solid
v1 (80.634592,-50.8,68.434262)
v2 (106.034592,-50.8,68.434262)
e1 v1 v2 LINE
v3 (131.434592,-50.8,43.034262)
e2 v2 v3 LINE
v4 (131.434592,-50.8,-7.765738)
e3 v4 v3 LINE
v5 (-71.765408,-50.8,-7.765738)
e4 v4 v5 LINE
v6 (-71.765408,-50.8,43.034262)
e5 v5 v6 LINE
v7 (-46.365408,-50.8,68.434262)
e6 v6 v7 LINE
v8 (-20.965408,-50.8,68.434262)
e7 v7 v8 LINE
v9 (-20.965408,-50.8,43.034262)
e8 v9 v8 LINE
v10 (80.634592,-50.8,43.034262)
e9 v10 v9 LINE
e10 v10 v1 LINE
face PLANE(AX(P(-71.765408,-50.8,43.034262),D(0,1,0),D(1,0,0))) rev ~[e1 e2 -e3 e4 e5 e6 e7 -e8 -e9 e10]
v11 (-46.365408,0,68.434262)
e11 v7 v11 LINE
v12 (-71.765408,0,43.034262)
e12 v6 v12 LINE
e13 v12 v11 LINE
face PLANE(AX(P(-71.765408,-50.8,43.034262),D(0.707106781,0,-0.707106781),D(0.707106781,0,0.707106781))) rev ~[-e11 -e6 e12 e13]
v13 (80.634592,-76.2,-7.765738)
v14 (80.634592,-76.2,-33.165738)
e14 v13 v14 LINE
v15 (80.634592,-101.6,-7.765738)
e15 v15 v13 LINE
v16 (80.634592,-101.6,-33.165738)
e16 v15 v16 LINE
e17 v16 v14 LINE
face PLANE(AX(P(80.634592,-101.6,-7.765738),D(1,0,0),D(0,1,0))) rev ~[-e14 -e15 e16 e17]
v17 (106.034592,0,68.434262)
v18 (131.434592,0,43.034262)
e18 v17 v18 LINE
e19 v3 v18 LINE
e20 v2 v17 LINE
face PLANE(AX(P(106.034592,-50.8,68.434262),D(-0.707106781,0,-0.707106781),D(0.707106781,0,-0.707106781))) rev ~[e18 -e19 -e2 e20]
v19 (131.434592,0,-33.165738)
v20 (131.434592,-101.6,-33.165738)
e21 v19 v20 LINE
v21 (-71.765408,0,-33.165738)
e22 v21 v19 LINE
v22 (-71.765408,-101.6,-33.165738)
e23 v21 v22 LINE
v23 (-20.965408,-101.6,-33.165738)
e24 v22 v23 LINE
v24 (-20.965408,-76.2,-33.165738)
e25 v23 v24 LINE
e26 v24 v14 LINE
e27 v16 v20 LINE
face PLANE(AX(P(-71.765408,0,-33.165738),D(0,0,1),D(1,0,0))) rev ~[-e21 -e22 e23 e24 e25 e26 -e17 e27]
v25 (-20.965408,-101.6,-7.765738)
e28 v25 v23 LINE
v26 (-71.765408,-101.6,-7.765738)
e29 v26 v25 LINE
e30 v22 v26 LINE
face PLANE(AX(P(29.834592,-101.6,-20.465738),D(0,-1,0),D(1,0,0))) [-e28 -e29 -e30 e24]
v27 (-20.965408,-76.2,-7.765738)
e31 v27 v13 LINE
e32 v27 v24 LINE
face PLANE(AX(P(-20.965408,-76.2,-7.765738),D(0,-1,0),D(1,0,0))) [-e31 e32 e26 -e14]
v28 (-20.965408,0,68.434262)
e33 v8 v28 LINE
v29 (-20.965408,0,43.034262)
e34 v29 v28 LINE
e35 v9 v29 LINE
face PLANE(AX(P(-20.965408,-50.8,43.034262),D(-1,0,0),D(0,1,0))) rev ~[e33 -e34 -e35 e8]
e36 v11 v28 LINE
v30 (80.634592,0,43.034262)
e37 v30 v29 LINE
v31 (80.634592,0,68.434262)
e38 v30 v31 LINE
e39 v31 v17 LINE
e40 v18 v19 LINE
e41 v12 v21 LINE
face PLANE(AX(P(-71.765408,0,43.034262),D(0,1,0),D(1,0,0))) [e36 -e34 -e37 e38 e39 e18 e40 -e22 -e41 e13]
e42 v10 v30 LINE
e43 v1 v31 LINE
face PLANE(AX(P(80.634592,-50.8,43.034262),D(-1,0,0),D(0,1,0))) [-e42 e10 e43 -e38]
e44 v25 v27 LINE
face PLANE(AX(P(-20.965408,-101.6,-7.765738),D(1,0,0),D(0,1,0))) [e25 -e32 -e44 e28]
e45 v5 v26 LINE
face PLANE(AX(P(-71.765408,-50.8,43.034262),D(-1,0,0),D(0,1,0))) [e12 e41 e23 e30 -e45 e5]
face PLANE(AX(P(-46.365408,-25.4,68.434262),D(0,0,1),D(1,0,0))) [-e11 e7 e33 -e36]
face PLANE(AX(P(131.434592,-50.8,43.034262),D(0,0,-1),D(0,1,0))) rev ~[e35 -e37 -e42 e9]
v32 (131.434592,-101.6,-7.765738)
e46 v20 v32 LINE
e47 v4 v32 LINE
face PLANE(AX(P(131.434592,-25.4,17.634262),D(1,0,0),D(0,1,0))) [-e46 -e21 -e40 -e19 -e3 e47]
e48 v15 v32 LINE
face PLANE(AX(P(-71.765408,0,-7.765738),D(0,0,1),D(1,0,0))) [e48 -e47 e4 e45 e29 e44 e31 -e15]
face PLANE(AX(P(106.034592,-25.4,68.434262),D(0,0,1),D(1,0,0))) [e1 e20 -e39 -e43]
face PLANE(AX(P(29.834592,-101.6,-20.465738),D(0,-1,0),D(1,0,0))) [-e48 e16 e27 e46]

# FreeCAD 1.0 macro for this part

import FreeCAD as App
import Part
import Sketcher
from FreeCAD import Vector
Q = App.Units.Quantity

doc = App.newDocument("Part")
params = doc.addObject("Spreadsheet::Sheet", "Params")
for row, (alias, value) in enumerate([
    ("sketch1_width", "8 in"),
    ("sketch1_height", "1 in"),
    ("pad1_length", "4 in"),
    ("sketch2_width", "4 in"),
    ("sketch2_height", "1 in"),
    ("pocket1_length", "1 in"),
    ("sketch3_width", "2 in"),
    ("pad2_length", "8 in"),
    ("sketch4_width", "2 in"),
    ("pad3_length", "1 in"),
    ("sketch5_width", "1 in"),
    ("pocket2_length", "2 in"),
], start=1):
    params.set(f"A{row}", alias)
    params.set(f"B{row}", "=" + value)
    params.setAlias(f"B{row}", alias)

body = doc.addObject("PartDesign::Body", "Body")

# Sketch on XZ plane
sketch1 = doc.addObject("Sketcher::SketchObject", "Sketch")
body.addObject(sketch1)
sketch1.AttachmentSupport = (doc.XZ_Plane, [""])
sketch1.MapMode = "FlatFace"
sketch1.addGeometry(Part.LineSegment(Vector(-72, -8, 0), Vector(-72, -33, 0)), False)
sketch1.addGeometry(Part.LineSegment(Vector(-72, -33, 0), Vector(131, -33, 0)), False)
sketch1.addGeometry(Part.LineSegment(Vector(131, -33, 0), Vector(131, -8, 0)), False)
sketch1.addGeometry(Part.LineSegment(Vector(131, -8, 0), Vector(-72, -8, 0)), False)
sketch1.addConstraint(Sketcher.Constraint("Coincident", 0, 2, 1, 1))
sketch1.addConstraint(Sketcher.Constraint("Coincident", 1, 2, 2, 1))
sketch1.addConstraint(Sketcher.Constraint("Coincident", 2, 2, 3, 1))
sketch1.addConstraint(Sketcher.Constraint("Coincident", 3, 2, 0, 1))
sketch1.addConstraint(Sketcher.Constraint("Vertical", 0))
sketch1.addConstraint(Sketcher.Constraint("Horizontal", 1))
sketch1.addConstraint(Sketcher.Constraint("Vertical", 2))
sketch1.addConstraint(Sketcher.Constraint("Horizontal", 3))
sketch1.addConstraint(Sketcher.Constraint("DistanceX", 1, 1, 1, 2, Q("8 in")))
sketch1.addConstraint(Sketcher.Constraint("DistanceY", 0, 2, 0, 1, Q("1 in")))
sketch1.addConstraint(Sketcher.Constraint("DistanceX", 0, 2, -1, 1, Q("71.765408 mm")))
sketch1.addConstraint(Sketcher.Constraint("DistanceY", 0, 2, -1, 1, Q("33.165738 mm")))
sketch1.setExpression("Constraints[8]", "Params.sketch1_width")
sketch1.setExpression("Constraints[9]", "Params.sketch1_height")
pad1 = doc.addObject("PartDesign::Pad", "Pad")
body.addObject(pad1)
pad1.Profile = sketch1
pad1.setExpression("Length", "Params.pad1_length")

# Sketch on XY plane
sketch2 = doc.addObject("Sketcher::SketchObject", "Sketch001")
body.addObject(sketch2)
sketch2.AttachmentSupport = (doc.XY_Plane, [""])
sketch2.MapMode = "FlatFace"
sketch2.AttachmentOffset = App.Placement(Vector(0, 0, -7.765738), App.Rotation())
sketch2.addGeometry(Part.LineSegment(Vector(-21, -76, 0), Vector(-21, -102, 0)), False)
sketch2.addGeometry(Part.LineSegment(Vector(-21, -102, 0), Vector(81, -102, 0)), False)
sketch2.addGeometry(Part.LineSegment(Vector(81, -102, 0), Vector(81, -76, 0)), False)
sketch2.addGeometry(Part.LineSegment(Vector(81, -76, 0), Vector(-21, -76, 0)), False)
sketch2.addConstraint(Sketcher.Constraint("Coincident", 0, 2, 1, 1))
sketch2.addConstraint(Sketcher.Constraint("Coincident", 1, 2, 2, 1))
sketch2.addConstraint(Sketcher.Constraint("Coincident", 2, 2, 3, 1))
sketch2.addConstraint(Sketcher.Constraint("Coincident", 3, 2, 0, 1))
sketch2.addConstraint(Sketcher.Constraint("Vertical", 0))
sketch2.addConstraint(Sketcher.Constraint("Horizontal", 1))
sketch2.addConstraint(Sketcher.Constraint("Vertical", 2))
sketch2.addConstraint(Sketcher.Constraint("Horizontal", 3))
sketch2.addConstraint(Sketcher.Constraint("DistanceX", 1, 1, 1, 2, Q("4 in")))
sketch2.addConstraint(Sketcher.Constraint("DistanceY", 0, 2, 0, 1, Q("1 in")))
sketch2.addConstraint(Sketcher.Constraint("DistanceY", 0, 2, -1, 1, Q("4 in")))
sketch2.addConstraint(Sketcher.Constraint("DistanceX", 0, 2, -1, 1, Q("20.965408 mm")))
sketch2.setExpression("Constraints[8]", "Params.sketch2_width")
sketch2.setExpression("Constraints[9]", "Params.sketch2_height")
pocket1 = doc.addObject("PartDesign::Pocket", "Pocket")
body.addObject(pocket1)
pocket1.Profile = sketch2
pocket1.setExpression("Length", "Params.pocket1_length")

# Sketch on YZ plane
sketch3 = doc.addObject("Sketcher::SketchObject", "Sketch002")
body.addObject(sketch3)
sketch3.AttachmentSupport = (doc.YZ_Plane, [""])
sketch3.MapMode = "FlatFace"
sketch3.AttachmentOffset = App.Placement(Vector(0, 0, 131.434592), App.Rotation())
sketch3.addGeometry(Part.LineSegment(Vector(-51, 43, 0), Vector(-51, -8, 0)), False)
sketch3.addGeometry(Part.LineSegment(Vector(-51, -8, 0), Vector(0, -8, 0)), False)
sketch3.addGeometry(Part.LineSegment(Vector(0, -8, 0), Vector(0, 43, 0)), False)
sketch3.addGeometry(Part.LineSegment(Vector(0, 43, 0), Vector(-51, 43, 0)), False)
sketch3.addConstraint(Sketcher.Constraint("Coincident", 0, 2, 1, 1))
sketch3.addConstraint(Sketcher.Constraint("Coincident", 1, 2, 2, 1))
sketch3.addConstraint(Sketcher.Constraint("Coincident", 2, 2, 3, 1))
sketch3.addConstraint(Sketcher.Constraint("Coincident", 3, 2, 0, 1))
sketch3.addConstraint(Sketcher.Constraint("Vertical", 0))
sketch3.addConstraint(Sketcher.Constraint("Horizontal", 1))
sketch3.addConstraint(Sketcher.Constraint("Vertical", 2))
sketch3.addConstraint(Sketcher.Constraint("Horizontal", 3))
sketch3.addConstraint(Sketcher.Constraint("PointOnObject", 1, 2, -2))
sketch3.addConstraint(Sketcher.Constraint("Equal", 3, 0))
sketch3.addConstraint(Sketcher.Constraint("DistanceX", 1, 1, 1, 2, Q("2 in")))
sketch3.addConstraint(Sketcher.Constraint("DistanceY", -1, 1, 2, 2, Q("43.034262 mm")))
sketch3.setExpression("Constraints[10]", "Params.sketch3_width")
pad2 = doc.addObject("PartDesign::Pad", "Pad001")
body.addObject(pad2)
pad2.Profile = sketch3
pad2.setExpression("Length", "Params.pad2_length")
pad2.Reversed = True

# Sketch on XY plane
sketch4 = doc.addObject("Sketcher::SketchObject", "Sketch003")
body.addObject(sketch4)
sketch4.AttachmentSupport = (doc.XY_Plane, [""])
sketch4.MapMode = "FlatFace"
sketch4.AttachmentOffset = App.Placement(Vector(0, 0, 43.034262), App.Rotation())
sketch4.addGeometry(Part.LineSegment(Vector(-72, 0, 0), Vector(-72, -51, 0)), False)
sketch4.addGeometry(Part.LineSegment(Vector(-72, -51, 0), Vector(-21, -51, 0)), False)
sketch4.addGeometry(Part.LineSegment(Vector(-21, -51, 0), Vector(-21, 0, 0)), False)
sketch4.addGeometry(Part.LineSegment(Vector(-21, 0, 0), Vector(-72, 0, 0)), False)
sketch4.addGeometry(Part.LineSegment(Vector(81, 0, 0), Vector(81, -51, 0)), False)
sketch4.addGeometry(Part.LineSegment(Vector(81, -51, 0), Vector(131, -51, 0)), False)
sketch4.addGeometry(Part.LineSegment(Vector(131, -51, 0), Vector(131, 0, 0)), False)
sketch4.addGeometry(Part.LineSegment(Vector(131, 0, 0), Vector(81, 0, 0)), False)
sketch4.addConstraint(Sketcher.Constraint("Coincident", 0, 2, 1, 1))
sketch4.addConstraint(Sketcher.Constraint("Coincident", 1, 2, 2, 1))
sketch4.addConstraint(Sketcher.Constraint("Coincident", 2, 2, 3, 1))
sketch4.addConstraint(Sketcher.Constraint("Coincident", 3, 2, 0, 1))
sketch4.addConstraint(Sketcher.Constraint("Coincident", 4, 2, 5, 1))
sketch4.addConstraint(Sketcher.Constraint("Coincident", 5, 2, 6, 1))
sketch4.addConstraint(Sketcher.Constraint("Coincident", 6, 2, 7, 1))
sketch4.addConstraint(Sketcher.Constraint("Coincident", 7, 2, 4, 1))
sketch4.addConstraint(Sketcher.Constraint("Vertical", 0))
sketch4.addConstraint(Sketcher.Constraint("Horizontal", 1))
sketch4.addConstraint(Sketcher.Constraint("Vertical", 2))
sketch4.addConstraint(Sketcher.Constraint("Horizontal", 3))
sketch4.addConstraint(Sketcher.Constraint("Vertical", 4))
sketch4.addConstraint(Sketcher.Constraint("Horizontal", 5))
sketch4.addConstraint(Sketcher.Constraint("Vertical", 6))
sketch4.addConstraint(Sketcher.Constraint("Horizontal", 7))
sketch4.addConstraint(Sketcher.Constraint("PointOnObject", 2, 2, -1))
sketch4.addConstraint(Sketcher.Constraint("PointOnObject", 6, 2, -1))
sketch4.addConstraint(Sketcher.Constraint("Horizontal", 1, 2, 4, 2))
sketch4.addConstraint(Sketcher.Constraint("Equal", 3, 5))
sketch4.addConstraint(Sketcher.Constraint("Equal", 7, 0))
sketch4.addConstraint(Sketcher.Constraint("DistanceX", 1, 1, 1, 2, Q("2 in")))
sketch4.addConstraint(Sketcher.Constraint("DistanceX", 1, 2, 4, 2, Q("4 in")))
sketch4.addConstraint(Sketcher.Constraint("DistanceX", 1, 2, -1, 1, Q("20.965408 mm")))
sketch4.setExpression("Constraints[21]", "Params.sketch4_width")
pad3 = doc.addObject("PartDesign::Pad", "Pad002")
body.addObject(pad3)
pad3.Profile = sketch4
pad3.setExpression("Length", "Params.pad3_length")

# Sketch on XZ plane
sketch5 = doc.addObject("Sketcher::SketchObject", "Sketch004")
body.addObject(sketch5)
sketch5.AttachmentSupport = (doc.XZ_Plane, [""])
sketch5.MapMode = "FlatFace"
sketch5.AttachmentOffset = App.Placement(Vector(0, 0, 2 * 25.4), App.Rotation())
sketch5.addGeometry(Part.LineSegment(Vector(106, 68, 0), Vector(131, 43, 0)), False)
sketch5.addGeometry(Part.LineSegment(Vector(131, 43, 0), Vector(131, 68, 0)), False)
sketch5.addGeometry(Part.LineSegment(Vector(131, 68, 0), Vector(106, 68, 0)), False)
sketch5.addGeometry(Part.LineSegment(Vector(-72, 43, 0), Vector(-46, 68, 0)), False)
sketch5.addGeometry(Part.LineSegment(Vector(-46, 68, 0), Vector(-72, 68, 0)), False)
sketch5.addGeometry(Part.LineSegment(Vector(-72, 68, 0), Vector(-72, 43, 0)), False)
sketch5.addConstraint(Sketcher.Constraint("Coincident", 0, 2, 1, 1))
sketch5.addConstraint(Sketcher.Constraint("Coincident", 1, 2, 2, 1))
sketch5.addConstraint(Sketcher.Constraint("Coincident", 2, 2, 0, 1))
sketch5.addConstraint(Sketcher.Constraint("Coincident", 3, 2, 4, 1))
sketch5.addConstraint(Sketcher.Constraint("Coincident", 4, 2, 5, 1))
sketch5.addConstraint(Sketcher.Constraint("Coincident", 5, 2, 3, 1))
sketch5.addConstraint(Sketcher.Constraint("Vertical", 1))
sketch5.addConstraint(Sketcher.Constraint("Horizontal", 2))
sketch5.addConstraint(Sketcher.Constraint("Horizontal", 4))
sketch5.addConstraint(Sketcher.Constraint("Vertical", 5))
sketch5.addConstraint(Sketcher.Constraint("Perpendicular", 0, 3))
sketch5.addConstraint(Sketcher.Constraint("Horizontal", 2, 2, 3, 2))
sketch5.addConstraint(Sketcher.Constraint("Horizontal", 0, 2, 5, 2))
sketch5.addConstraint(Sketcher.Constraint("Equal", 2, 4))
sketch5.addConstraint(Sketcher.Constraint("DistanceX", 2, 2, 2, 1, Q("1 in")))
sketch5.addConstraint(Sketcher.Constraint("DistanceX", 3, 2, 2, 2, Q("6 in")))
sketch5.addConstraint(Sketcher.Constraint("DistanceY", -1, 1, 0, 2, Q("43.034262 mm")))
sketch5.addConstraint(Sketcher.Constraint("DistanceX", 3, 2, -1, 1, Q("46.365408 mm")))
sketch5.setExpression("Constraints[14]", "Params.sketch5_width")
pocket2 = doc.addObject("PartDesign::Pocket", "Pocket001")
body.addObject(pocket2)
pocket2.Profile = sketch5
pocket2.setExpression("Length", "Params.pocket2_length")

doc.recompute()
